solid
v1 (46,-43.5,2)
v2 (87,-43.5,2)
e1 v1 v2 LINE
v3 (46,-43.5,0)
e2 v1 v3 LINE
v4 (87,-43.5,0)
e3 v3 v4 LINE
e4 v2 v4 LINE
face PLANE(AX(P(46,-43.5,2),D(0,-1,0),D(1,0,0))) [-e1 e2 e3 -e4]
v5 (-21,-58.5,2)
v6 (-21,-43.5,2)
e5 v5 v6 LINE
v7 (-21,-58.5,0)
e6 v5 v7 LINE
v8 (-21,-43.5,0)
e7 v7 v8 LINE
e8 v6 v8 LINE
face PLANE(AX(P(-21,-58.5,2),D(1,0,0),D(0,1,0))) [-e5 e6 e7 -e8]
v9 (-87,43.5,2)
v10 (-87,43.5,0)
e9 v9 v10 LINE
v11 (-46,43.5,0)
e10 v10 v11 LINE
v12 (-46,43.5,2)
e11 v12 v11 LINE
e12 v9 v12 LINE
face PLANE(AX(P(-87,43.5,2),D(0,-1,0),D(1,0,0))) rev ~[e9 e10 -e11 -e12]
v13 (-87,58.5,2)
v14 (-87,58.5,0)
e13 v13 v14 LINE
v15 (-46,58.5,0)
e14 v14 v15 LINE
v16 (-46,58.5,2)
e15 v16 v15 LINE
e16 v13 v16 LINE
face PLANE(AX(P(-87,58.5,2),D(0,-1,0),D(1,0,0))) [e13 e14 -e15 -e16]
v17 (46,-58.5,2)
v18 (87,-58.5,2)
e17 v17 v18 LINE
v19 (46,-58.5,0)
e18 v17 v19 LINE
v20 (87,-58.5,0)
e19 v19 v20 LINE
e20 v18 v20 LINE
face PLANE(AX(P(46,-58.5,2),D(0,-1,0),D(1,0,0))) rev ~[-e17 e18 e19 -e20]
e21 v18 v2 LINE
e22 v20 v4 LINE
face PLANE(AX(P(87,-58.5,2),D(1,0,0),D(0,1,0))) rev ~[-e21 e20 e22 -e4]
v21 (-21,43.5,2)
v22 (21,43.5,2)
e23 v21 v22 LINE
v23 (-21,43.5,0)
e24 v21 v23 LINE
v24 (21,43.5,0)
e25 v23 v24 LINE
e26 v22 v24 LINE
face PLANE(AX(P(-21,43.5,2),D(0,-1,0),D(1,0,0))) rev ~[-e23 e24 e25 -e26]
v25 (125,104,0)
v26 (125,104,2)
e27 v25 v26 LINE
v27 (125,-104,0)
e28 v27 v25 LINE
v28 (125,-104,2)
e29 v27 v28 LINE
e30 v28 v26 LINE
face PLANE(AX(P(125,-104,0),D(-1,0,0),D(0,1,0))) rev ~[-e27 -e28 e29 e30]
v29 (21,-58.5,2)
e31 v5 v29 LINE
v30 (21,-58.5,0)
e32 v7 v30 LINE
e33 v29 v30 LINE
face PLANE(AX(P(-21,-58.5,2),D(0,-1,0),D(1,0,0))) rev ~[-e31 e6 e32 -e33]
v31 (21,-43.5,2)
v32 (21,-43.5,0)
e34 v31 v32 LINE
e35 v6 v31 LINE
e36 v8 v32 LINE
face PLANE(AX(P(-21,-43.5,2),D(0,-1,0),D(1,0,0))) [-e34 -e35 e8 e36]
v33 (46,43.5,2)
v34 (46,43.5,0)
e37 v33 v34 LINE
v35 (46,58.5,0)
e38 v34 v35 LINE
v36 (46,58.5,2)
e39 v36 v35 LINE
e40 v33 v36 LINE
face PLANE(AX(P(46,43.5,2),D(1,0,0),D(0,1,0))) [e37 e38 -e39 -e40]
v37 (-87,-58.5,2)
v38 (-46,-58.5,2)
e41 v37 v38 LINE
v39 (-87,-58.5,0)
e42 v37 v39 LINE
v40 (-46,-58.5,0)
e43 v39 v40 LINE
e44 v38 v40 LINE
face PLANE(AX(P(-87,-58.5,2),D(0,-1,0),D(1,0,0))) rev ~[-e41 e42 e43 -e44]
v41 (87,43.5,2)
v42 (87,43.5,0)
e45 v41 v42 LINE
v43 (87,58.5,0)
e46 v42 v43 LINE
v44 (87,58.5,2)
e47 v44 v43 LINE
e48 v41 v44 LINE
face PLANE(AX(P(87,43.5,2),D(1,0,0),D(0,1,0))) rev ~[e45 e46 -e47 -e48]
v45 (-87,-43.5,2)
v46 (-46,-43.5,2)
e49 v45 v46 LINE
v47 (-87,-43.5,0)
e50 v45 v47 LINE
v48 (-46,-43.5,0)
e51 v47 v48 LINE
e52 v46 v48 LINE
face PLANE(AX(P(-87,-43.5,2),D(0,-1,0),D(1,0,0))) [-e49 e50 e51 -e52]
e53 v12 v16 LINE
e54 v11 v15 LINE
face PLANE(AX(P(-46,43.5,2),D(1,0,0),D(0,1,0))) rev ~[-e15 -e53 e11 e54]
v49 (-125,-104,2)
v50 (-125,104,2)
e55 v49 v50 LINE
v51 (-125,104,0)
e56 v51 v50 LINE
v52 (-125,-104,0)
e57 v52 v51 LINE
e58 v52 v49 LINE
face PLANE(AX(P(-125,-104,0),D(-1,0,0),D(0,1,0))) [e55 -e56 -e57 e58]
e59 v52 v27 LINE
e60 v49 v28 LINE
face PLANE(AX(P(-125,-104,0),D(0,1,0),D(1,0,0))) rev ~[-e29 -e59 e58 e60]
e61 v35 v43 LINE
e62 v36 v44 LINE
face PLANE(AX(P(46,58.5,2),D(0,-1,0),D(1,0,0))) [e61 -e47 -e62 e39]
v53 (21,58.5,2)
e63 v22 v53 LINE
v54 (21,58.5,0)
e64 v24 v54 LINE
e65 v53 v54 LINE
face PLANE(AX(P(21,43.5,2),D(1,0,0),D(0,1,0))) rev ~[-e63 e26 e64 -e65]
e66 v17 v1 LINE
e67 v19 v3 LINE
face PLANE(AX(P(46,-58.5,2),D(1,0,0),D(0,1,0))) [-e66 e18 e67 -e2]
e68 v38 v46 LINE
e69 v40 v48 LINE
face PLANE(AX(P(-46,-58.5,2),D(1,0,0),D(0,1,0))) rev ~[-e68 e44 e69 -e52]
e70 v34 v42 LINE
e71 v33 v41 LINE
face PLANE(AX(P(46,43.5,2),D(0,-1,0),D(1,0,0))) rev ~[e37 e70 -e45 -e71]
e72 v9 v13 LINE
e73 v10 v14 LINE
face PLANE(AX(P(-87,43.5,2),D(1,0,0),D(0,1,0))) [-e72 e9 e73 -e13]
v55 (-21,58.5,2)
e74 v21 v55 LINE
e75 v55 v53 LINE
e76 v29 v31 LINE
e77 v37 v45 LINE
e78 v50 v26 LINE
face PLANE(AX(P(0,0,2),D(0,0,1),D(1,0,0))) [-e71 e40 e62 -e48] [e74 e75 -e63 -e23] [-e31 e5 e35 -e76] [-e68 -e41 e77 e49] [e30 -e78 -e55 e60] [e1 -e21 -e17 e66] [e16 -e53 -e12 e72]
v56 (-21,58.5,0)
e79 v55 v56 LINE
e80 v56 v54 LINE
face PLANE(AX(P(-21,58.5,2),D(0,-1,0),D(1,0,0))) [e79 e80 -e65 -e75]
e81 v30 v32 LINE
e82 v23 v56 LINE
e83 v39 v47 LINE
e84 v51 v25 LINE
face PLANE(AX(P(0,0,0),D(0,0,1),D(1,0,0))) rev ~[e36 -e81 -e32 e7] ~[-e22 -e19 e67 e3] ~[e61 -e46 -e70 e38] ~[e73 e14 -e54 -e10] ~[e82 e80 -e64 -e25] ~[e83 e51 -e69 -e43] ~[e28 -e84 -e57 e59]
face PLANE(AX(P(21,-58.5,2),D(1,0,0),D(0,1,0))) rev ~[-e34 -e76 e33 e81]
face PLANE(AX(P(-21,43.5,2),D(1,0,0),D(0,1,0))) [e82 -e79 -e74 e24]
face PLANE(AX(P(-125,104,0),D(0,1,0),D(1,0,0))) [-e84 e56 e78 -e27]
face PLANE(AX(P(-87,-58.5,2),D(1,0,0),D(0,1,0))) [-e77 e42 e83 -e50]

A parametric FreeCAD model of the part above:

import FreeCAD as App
import Part
import Sketcher

V = App.Vector


def add_polygon(sketch, points):
    """Adds a closed chain of lines whose ends are joined by coincident constraints."""
    first, n = sketch.GeometryCount, len(points)
    for a, b in zip(points, points[1:] + points[:1]):
        sketch.addGeometry(Part.LineSegment(App.Vector(*a, 0), App.Vector(*b, 0)), False)
    for i in range(n):
        sketch.addConstraint(Sketcher.Constraint("Coincident", first + i, 2, first + (i + 1) % n, 1))

doc = App.newDocument("Part")
params = doc.addObject("Spreadsheet::Sheet", "Params")
for row, (alias, value) in enumerate([
    ("sketch1_width", "250 mm"),
    ("sketch1_height", "208 mm"),
    ("pad1_length", "2 mm"),
    ("sketch2_width", "42 mm"),
    ("sketch2_width2", "41 mm"),
    ("sketch2_height", "15 mm"),
], start=1):
    params.set(f"A{row}", alias)
    params.set(f"B{row}", "=" + value)
    params.setAlias(f"B{row}", alias)

body = doc.addObject("PartDesign::Body", "Body")

# Sketch on XY plane
sketch1 = body.newObject("Sketcher::SketchObject", "Sketch")
sketch1.AttachmentSupport = (doc.getObject("XY_Plane"), [""])
sketch1.MapMode = "FlatFace"
add_polygon(sketch1, [(-125, 104), (-125, -104), (125, -104), (125, 104)])  # lines 0-3
sketch1.addConstraint(Sketcher.Constraint("Vertical", 0))
sketch1.addConstraint(Sketcher.Constraint("Horizontal", 1))
sketch1.addConstraint(Sketcher.Constraint("Vertical", 2))
sketch1.addConstraint(Sketcher.Constraint("Horizontal", 3))
sketch1.addConstraint(Sketcher.Constraint("Symmetric", 0, 2, 2, 2, -1, 1))
sketch1.addConstraint(Sketcher.Constraint("DistanceX", 1, 1, 1, 2, 250.0))
sketch1.addConstraint(Sketcher.Constraint("DistanceY", 0, 2, 0, 1, 208.0))
sketch1.setExpression("Constraints[9]", "Params.sketch1_width")
sketch1.setExpression("Constraints[10]", "Params.sketch1_height")
pad1 = body.newObject("PartDesign::Pad", "Pad")
pad1.Profile = sketch1
pad1.setExpression("Length", "Params.pad1_length")

# Sketch on XY plane
sketch2 = body.newObject("Sketcher::SketchObject", "Sketch001")
sketch2.AttachmentSupport = (doc.getObject("XY_Plane"), [""])
sketch2.MapMode = "FlatFace"
sketch2.AttachmentOffset = App.Placement(V(0, 0, 2), App.Rotation())
add_polygon(sketch2, [(-21, 58.5), (-21, 43.5), (21, 43.5), (21, 58.5)])  # lines 0-3
add_polygon(sketch2, [(46, 58.5), (46, 43.5), (87, 43.5), (87, 58.5)])  # lines 4-7
add_polygon(sketch2, [(-87, 58.5), (-87, 43.5), (-46, 43.5), (-46, 58.5)])  # lines 8-11
add_polygon(sketch2, [(-21, -43.5), (-21, -58.5), (21, -58.5), (21, -43.5)])  # lines 12-15
add_polygon(sketch2, [(46, -43.5), (46, -58.5), (87, -58.5), (87, -43.5)])  # lines 16-19
add_polygon(sketch2, [(-87, -43.5), (-87, -58.5), (-46, -58.5), (-46, -43.5)])  # lines 20-23
sketch2.addConstraint(Sketcher.Constraint("Vertical", 0))
sketch2.addConstraint(Sketcher.Constraint("Horizontal", 1))
sketch2.addConstraint(Sketcher.Constraint("Vertical", 2))
sketch2.addConstraint(Sketcher.Constraint("Horizontal", 3))
sketch2.addConstraint(Sketcher.Constraint("Vertical", 4))
sketch2.addConstraint(Sketcher.Constraint("Horizontal", 5))
sketch2.addConstraint(Sketcher.Constraint("Vertical", 6))
sketch2.addConstraint(Sketcher.Constraint("Horizontal", 7))
sketch2.addConstraint(Sketcher.Constraint("Vertical", 8))
sketch2.addConstraint(Sketcher.Constraint("Horizontal", 9))
sketch2.addConstraint(Sketcher.Constraint("Vertical", 10))
sketch2.addConstraint(Sketcher.Constraint("Horizontal", 11))
sketch2.addConstraint(Sketcher.Constraint("Vertical", 12))
sketch2.addConstraint(Sketcher.Constraint("Horizontal", 13))
sketch2.addConstraint(Sketcher.Constraint("Vertical", 14))
sketch2.addConstraint(Sketcher.Constraint("Horizontal", 15))
sketch2.addConstraint(Sketcher.Constraint("Vertical", 16))
sketch2.addConstraint(Sketcher.Constraint("Horizontal", 17))
sketch2.addConstraint(Sketcher.Constraint("Vertical", 18))
sketch2.addConstraint(Sketcher.Constraint("Horizontal", 19))
sketch2.addConstraint(Sketcher.Constraint("Vertical", 20))
sketch2.addConstraint(Sketcher.Constraint("Horizontal", 21))
sketch2.addConstraint(Sketcher.Constraint("Vertical", 22))
sketch2.addConstraint(Sketcher.Constraint("Horizontal", 23))
sketch2.addConstraint(Sketcher.Constraint("Symmetric", 2, 2, 12, 2, -1, 1))
sketch2.addConstraint(Sketcher.Constraint("Symmetric", 0, 2, 14, 2, -1, 1))
sketch2.addConstraint(Sketcher.Constraint("Symmetric", 10, 2, 16, 2, -1, 1))
sketch2.addConstraint(Sketcher.Constraint("Symmetric", 8, 2, 18, 2, -1, 1))
sketch2.addConstraint(Sketcher.Constraint("Symmetric", 6, 2, 20, 2, -1, 1))
sketch2.addConstraint(Sketcher.Constraint("Symmetric", 4, 2, 22, 2, -1, 1))
sketch2.addConstraint(Sketcher.Constraint("Symmetric", 5, 2, 8, 2, -2))
sketch2.addConstraint(Sketcher.Constraint("Symmetric", 7, 2, 10, 2, -2))
sketch2.addConstraint(Sketcher.Constraint("Horizontal", 1, 2, 4, 2))
sketch2.addConstraint(Sketcher.Constraint("Horizontal", 3, 2, 6, 2))
sketch2.addConstraint(Sketcher.Constraint("Vertical", 3, 2, 12, 2))
sketch2.addConstraint(Sketcher.Constraint("DistanceX", 1, 1, 1, 2, 42.0))
sketch2.addConstraint(Sketcher.Constraint("DistanceX", 5, 1, 5, 2, 41.0))
sketch2.addConstraint(Sketcher.Constraint("DistanceY", 0, 2, 0, 1, 15.0))
sketch2.addConstraint(Sketcher.Constraint("DistanceX", -1, 1, 4, 2, 46.0))
sketch2.addConstraint(Sketcher.Constraint("DistanceY", 12, 2, 0, 2, 102.0))
sketch2.setExpression("Constraints[59]", "Params.sketch2_width")
sketch2.setExpression("Constraints[60]", "Params.sketch2_width2")
sketch2.setExpression("Constraints[61]", "Params.sketch2_height")
pocket1 = body.newObject("PartDesign::Pocket", "Pocket")
pocket1.Profile = sketch2
pocket1.Type = "ThroughAll"

doc.recompute()
